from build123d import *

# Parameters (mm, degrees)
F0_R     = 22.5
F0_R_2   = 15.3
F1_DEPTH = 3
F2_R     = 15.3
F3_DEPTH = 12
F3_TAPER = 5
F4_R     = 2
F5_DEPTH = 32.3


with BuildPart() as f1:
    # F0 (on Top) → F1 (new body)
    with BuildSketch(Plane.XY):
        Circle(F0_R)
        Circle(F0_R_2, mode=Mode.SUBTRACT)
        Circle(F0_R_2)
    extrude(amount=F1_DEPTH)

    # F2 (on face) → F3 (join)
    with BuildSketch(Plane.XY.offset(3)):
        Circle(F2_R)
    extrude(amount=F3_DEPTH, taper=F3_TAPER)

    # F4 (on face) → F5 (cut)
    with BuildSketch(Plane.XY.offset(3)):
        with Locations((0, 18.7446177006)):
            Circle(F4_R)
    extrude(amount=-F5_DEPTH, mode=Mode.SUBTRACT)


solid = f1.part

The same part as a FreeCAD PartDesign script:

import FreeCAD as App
import Part
import Sketcher
Q = App.Units.Quantity

doc = App.newDocument("Part")
body = doc.addObject("PartDesign::Body", "Body")

sketch1 = body.newObject("Sketcher::SketchObject", "Sketch")
sketch1.AttachmentSupport = (doc.getObject("XY_Plane"), [""])
sketch1.MapMode = "FlatFace"
sketch1.addGeometry(Part.Circle(App.Vector(0, 0, 0), App.Vector(0, 0, 1), 22), False)
sketch1.addConstraint(Sketcher.Constraint("Coincident", 0, 3, -1, 1))
sketch1.addConstraint(Sketcher.Constraint("Diameter", 0, Q("45 mm")))
pad1 = body.newObject("PartDesign::Pad", "Pad")
pad1.Profile = sketch1
pad1.Length = 3

sketch2 = body.newObject("Sketcher::SketchObject", "Sketch001")
sketch2.AttachmentSupport = (doc.getObject("XY_Plane"), [""])
sketch2.MapMode = "FlatFace"
sketch2.AttachmentOffset = App.Placement(App.Vector(0, 0, 3), App.Rotation())
sketch2.addGeometry(Part.Circle(App.Vector(0, 0, 0), App.Vector(0, 0, 1), 15), False)
sketch2.addConstraint(Sketcher.Constraint("Coincident", 0, 3, -1, 1))
sketch2.addConstraint(Sketcher.Constraint("Diameter", 0, Q("30.6 mm")))
pad2 = body.newObject("PartDesign::Pad", "Pad001")
pad2.Profile = sketch2
pad2.Length = 12
pad2.TaperAngle = -5

sketch3 = body.newObject("Sketcher::SketchObject", "Sketch002")
sketch3.AttachmentSupport = (doc.getObject("XY_Plane"), [""])
sketch3.MapMode = "FlatFace"
sketch3.AttachmentOffset = App.Placement(App.Vector(0, 0, 3), App.Rotation())
sketch3.addGeometry(Part.Circle(App.Vector(0, 18.7, 0), App.Vector(0, 0, 1), 2), False)
sketch3.addConstraint(Sketcher.Constraint("PointOnObject", 0, 3, -2))
sketch3.addConstraint(Sketcher.Constraint("Diameter", 0, Q("4 mm")))
sketch3.addConstraint(Sketcher.Constraint("DistanceY", -1, 1, 0, 3, Q("18.744618 mm")))
pocket1 = body.newObject("PartDesign::Pocket", "Pocket")
pocket1.Profile = sketch3
pocket1.Length = 32.3

doc.recompute()
